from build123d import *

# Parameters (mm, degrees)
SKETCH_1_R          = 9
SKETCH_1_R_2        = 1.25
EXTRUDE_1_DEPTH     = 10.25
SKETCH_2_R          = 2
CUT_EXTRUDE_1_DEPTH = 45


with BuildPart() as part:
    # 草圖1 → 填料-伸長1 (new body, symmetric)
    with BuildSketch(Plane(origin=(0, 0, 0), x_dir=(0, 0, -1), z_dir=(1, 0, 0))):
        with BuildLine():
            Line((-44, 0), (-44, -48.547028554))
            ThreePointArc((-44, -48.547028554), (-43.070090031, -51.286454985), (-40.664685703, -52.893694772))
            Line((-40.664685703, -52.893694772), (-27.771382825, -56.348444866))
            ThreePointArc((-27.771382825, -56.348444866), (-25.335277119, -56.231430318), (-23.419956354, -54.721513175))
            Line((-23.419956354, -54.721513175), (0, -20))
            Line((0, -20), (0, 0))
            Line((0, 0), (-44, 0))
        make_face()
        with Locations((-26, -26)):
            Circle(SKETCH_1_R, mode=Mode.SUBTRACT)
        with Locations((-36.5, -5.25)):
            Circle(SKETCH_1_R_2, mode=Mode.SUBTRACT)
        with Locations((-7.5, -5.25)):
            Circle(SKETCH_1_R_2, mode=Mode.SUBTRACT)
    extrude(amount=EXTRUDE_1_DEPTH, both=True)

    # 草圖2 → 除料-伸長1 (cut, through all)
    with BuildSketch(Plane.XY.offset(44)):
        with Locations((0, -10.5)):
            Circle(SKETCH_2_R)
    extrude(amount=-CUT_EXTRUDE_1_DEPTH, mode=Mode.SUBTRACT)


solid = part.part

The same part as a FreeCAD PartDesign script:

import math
import FreeCAD as App
import Part
import Sketcher

V = App.Vector
Q = App.Units.Quantity

doc = App.newDocument("Part")
body = doc.addObject("PartDesign::Body", "Body")

# Sketch on YZ plane
sketch1 = body.newObject("Sketcher::SketchObject", "Sketch")
sketch1.AttachmentSupport = (doc.getObject("YZ_Plane"), [""])
sketch1.MapMode = "FlatFace"
sketch1.addGeometry(Part.LineSegment(V(0, 44, 0), V(-48.5, 44, 0)), False)
sketch1.addGeometry(Part.ArcOfCircle(Part.Circle(V(-48.5, 39.5, 0), V(0, 0, 1), 4.5), math.radians(90), math.radians(165)), False)
sketch1.addGeometry(Part.LineSegment(V(-52.9, 40.7, 0), V(-56.3, 27.8, 0)), False)
sketch1.addGeometry(Part.ArcOfCircle(Part.Circle(V(-52.5, 26.7, 0), V(0, 0, 1), 4), math.radians(165), math.radians(236)), False)
sketch1.addGeometry(Part.LineSegment(V(-54.7, 23.4, 0), V(-20, 0, 0)), False)
sketch1.addGeometry(Part.LineSegment(V(-20, 0, 0), V(0, 0, 0)), False)
sketch1.addGeometry(Part.LineSegment(V(0, 0, 0), V(0, 44, 0)), False)
sketch1.addGeometry(Part.Circle(V(-26, 26, 0), V(0, 0, 1), 9), False)
sketch1.addGeometry(Part.Circle(V(-5.2, 36.5, 0), V(0, 0, 1), 1.2), False)
sketch1.addGeometry(Part.Circle(V(-5.2, 7.5, 0), V(0, 0, 1), 1.2), False)
sketch1.addConstraint(Sketcher.Constraint("Tangent", 0, 2, 1, 1))
sketch1.addConstraint(Sketcher.Constraint("Tangent", 1, 2, 2, 1))
sketch1.addConstraint(Sketcher.Constraint("Tangent", 2, 2, 3, 1))
sketch1.addConstraint(Sketcher.Constraint("Tangent", 3, 2, 4, 1))
sketch1.addConstraint(Sketcher.Constraint("Coincident", 4, 2, 5, 1))
sketch1.addConstraint(Sketcher.Constraint("Coincident", 5, 2, 6, 1))
sketch1.addConstraint(Sketcher.Constraint("Coincident", 6, 2, 0, 1))
sketch1.addConstraint(Sketcher.Constraint("Horizontal", 0))
sketch1.addConstraint(Sketcher.Constraint("Horizontal", 5))
sketch1.addConstraint(Sketcher.Constraint("Vertical", 6))
sketch1.addConstraint(Sketcher.Constraint("Coincident", 5, 2, -1, 1))
sketch1.addConstraint(Sketcher.Constraint("Equal", 8, 9))
sketch1.addConstraint(Sketcher.Constraint("Vertical", 8, 3, 9, 3))
sketch1.addConstraint(Sketcher.Constraint("Diameter", 7, Q("18 mm")))
sketch1.addConstraint(Sketcher.Constraint("Radius", 3, Q("4 mm")))
sketch1.addConstraint(Sketcher.Constraint("Diameter", 8, Q("2.5 mm")))
sketch1.addConstraint(Sketcher.Constraint("Radius", 1, Q("4.5 mm")))
sketch1.addConstraint(Sketcher.Constraint("DistanceX", 5, 1, 5, 2, Q("20 mm")))
sketch1.addConstraint(Sketcher.Constraint("DistanceY", 6, 1, 6, 2, Q("44 mm")))
sketch1.addConstraint(Sketcher.Constraint("Angle", 2, Q("-105 deg")))
sketch1.addConstraint(Sketcher.Constraint("Angle", 4, Q("-34 deg")))
sketch1.addConstraint(Sketcher.Constraint("DistanceX", 7, 3, -1, 1, Q("26 mm")))
sketch1.addConstraint(Sketcher.Constraint("DistanceY", -1, 1, 7, 3, Q("26 mm")))
sketch1.addConstraint(Sketcher.Constraint("DistanceY", 8, 3, 1, 3, Q("3 mm")))
sketch1.addConstraint(Sketcher.Constraint("DistanceY", 9, 3, 8, 3, Q("29 mm")))
sketch1.addConstraint(Sketcher.Constraint("DistanceX", 8, 3, -1, 1, Q("5.25 mm")))
sketch1.addConstraint(Sketcher.Constraint("DistanceX", 0, 2, 0, 1, Q("48.547029 mm")))
pad1 = body.newObject("PartDesign::Pad", "Pad")
pad1.Profile = sketch1
pad1.Length = 20.5
pad1.Midplane = True

# Sketch on XY plane
sketch2 = body.newObject("Sketcher::SketchObject", "Sketch001")
sketch2.AttachmentSupport = (doc.getObject("XY_Plane"), [""])
sketch2.MapMode = "FlatFace"
sketch2.AttachmentOffset = App.Placement(V(0, 0, 44), App.Rotation())
sketch2.addGeometry(Part.Circle(V(0, -10.5, 0), V(0, 0, 1), 2), False)
sketch2.addConstraint(Sketcher.Constraint("PointOnObject", 0, 3, -2))
sketch2.addConstraint(Sketcher.Constraint("Diameter", 0, Q("4 mm")))
sketch2.addConstraint(Sketcher.Constraint("DistanceY", 0, 3, -1, 1, Q("10.5 mm")))
pocket1 = body.newObject("PartDesign::Pocket", "Pocket")
pocket1.Profile = sketch2
pocket1.Type = "ThroughAll"

doc.recompute()
